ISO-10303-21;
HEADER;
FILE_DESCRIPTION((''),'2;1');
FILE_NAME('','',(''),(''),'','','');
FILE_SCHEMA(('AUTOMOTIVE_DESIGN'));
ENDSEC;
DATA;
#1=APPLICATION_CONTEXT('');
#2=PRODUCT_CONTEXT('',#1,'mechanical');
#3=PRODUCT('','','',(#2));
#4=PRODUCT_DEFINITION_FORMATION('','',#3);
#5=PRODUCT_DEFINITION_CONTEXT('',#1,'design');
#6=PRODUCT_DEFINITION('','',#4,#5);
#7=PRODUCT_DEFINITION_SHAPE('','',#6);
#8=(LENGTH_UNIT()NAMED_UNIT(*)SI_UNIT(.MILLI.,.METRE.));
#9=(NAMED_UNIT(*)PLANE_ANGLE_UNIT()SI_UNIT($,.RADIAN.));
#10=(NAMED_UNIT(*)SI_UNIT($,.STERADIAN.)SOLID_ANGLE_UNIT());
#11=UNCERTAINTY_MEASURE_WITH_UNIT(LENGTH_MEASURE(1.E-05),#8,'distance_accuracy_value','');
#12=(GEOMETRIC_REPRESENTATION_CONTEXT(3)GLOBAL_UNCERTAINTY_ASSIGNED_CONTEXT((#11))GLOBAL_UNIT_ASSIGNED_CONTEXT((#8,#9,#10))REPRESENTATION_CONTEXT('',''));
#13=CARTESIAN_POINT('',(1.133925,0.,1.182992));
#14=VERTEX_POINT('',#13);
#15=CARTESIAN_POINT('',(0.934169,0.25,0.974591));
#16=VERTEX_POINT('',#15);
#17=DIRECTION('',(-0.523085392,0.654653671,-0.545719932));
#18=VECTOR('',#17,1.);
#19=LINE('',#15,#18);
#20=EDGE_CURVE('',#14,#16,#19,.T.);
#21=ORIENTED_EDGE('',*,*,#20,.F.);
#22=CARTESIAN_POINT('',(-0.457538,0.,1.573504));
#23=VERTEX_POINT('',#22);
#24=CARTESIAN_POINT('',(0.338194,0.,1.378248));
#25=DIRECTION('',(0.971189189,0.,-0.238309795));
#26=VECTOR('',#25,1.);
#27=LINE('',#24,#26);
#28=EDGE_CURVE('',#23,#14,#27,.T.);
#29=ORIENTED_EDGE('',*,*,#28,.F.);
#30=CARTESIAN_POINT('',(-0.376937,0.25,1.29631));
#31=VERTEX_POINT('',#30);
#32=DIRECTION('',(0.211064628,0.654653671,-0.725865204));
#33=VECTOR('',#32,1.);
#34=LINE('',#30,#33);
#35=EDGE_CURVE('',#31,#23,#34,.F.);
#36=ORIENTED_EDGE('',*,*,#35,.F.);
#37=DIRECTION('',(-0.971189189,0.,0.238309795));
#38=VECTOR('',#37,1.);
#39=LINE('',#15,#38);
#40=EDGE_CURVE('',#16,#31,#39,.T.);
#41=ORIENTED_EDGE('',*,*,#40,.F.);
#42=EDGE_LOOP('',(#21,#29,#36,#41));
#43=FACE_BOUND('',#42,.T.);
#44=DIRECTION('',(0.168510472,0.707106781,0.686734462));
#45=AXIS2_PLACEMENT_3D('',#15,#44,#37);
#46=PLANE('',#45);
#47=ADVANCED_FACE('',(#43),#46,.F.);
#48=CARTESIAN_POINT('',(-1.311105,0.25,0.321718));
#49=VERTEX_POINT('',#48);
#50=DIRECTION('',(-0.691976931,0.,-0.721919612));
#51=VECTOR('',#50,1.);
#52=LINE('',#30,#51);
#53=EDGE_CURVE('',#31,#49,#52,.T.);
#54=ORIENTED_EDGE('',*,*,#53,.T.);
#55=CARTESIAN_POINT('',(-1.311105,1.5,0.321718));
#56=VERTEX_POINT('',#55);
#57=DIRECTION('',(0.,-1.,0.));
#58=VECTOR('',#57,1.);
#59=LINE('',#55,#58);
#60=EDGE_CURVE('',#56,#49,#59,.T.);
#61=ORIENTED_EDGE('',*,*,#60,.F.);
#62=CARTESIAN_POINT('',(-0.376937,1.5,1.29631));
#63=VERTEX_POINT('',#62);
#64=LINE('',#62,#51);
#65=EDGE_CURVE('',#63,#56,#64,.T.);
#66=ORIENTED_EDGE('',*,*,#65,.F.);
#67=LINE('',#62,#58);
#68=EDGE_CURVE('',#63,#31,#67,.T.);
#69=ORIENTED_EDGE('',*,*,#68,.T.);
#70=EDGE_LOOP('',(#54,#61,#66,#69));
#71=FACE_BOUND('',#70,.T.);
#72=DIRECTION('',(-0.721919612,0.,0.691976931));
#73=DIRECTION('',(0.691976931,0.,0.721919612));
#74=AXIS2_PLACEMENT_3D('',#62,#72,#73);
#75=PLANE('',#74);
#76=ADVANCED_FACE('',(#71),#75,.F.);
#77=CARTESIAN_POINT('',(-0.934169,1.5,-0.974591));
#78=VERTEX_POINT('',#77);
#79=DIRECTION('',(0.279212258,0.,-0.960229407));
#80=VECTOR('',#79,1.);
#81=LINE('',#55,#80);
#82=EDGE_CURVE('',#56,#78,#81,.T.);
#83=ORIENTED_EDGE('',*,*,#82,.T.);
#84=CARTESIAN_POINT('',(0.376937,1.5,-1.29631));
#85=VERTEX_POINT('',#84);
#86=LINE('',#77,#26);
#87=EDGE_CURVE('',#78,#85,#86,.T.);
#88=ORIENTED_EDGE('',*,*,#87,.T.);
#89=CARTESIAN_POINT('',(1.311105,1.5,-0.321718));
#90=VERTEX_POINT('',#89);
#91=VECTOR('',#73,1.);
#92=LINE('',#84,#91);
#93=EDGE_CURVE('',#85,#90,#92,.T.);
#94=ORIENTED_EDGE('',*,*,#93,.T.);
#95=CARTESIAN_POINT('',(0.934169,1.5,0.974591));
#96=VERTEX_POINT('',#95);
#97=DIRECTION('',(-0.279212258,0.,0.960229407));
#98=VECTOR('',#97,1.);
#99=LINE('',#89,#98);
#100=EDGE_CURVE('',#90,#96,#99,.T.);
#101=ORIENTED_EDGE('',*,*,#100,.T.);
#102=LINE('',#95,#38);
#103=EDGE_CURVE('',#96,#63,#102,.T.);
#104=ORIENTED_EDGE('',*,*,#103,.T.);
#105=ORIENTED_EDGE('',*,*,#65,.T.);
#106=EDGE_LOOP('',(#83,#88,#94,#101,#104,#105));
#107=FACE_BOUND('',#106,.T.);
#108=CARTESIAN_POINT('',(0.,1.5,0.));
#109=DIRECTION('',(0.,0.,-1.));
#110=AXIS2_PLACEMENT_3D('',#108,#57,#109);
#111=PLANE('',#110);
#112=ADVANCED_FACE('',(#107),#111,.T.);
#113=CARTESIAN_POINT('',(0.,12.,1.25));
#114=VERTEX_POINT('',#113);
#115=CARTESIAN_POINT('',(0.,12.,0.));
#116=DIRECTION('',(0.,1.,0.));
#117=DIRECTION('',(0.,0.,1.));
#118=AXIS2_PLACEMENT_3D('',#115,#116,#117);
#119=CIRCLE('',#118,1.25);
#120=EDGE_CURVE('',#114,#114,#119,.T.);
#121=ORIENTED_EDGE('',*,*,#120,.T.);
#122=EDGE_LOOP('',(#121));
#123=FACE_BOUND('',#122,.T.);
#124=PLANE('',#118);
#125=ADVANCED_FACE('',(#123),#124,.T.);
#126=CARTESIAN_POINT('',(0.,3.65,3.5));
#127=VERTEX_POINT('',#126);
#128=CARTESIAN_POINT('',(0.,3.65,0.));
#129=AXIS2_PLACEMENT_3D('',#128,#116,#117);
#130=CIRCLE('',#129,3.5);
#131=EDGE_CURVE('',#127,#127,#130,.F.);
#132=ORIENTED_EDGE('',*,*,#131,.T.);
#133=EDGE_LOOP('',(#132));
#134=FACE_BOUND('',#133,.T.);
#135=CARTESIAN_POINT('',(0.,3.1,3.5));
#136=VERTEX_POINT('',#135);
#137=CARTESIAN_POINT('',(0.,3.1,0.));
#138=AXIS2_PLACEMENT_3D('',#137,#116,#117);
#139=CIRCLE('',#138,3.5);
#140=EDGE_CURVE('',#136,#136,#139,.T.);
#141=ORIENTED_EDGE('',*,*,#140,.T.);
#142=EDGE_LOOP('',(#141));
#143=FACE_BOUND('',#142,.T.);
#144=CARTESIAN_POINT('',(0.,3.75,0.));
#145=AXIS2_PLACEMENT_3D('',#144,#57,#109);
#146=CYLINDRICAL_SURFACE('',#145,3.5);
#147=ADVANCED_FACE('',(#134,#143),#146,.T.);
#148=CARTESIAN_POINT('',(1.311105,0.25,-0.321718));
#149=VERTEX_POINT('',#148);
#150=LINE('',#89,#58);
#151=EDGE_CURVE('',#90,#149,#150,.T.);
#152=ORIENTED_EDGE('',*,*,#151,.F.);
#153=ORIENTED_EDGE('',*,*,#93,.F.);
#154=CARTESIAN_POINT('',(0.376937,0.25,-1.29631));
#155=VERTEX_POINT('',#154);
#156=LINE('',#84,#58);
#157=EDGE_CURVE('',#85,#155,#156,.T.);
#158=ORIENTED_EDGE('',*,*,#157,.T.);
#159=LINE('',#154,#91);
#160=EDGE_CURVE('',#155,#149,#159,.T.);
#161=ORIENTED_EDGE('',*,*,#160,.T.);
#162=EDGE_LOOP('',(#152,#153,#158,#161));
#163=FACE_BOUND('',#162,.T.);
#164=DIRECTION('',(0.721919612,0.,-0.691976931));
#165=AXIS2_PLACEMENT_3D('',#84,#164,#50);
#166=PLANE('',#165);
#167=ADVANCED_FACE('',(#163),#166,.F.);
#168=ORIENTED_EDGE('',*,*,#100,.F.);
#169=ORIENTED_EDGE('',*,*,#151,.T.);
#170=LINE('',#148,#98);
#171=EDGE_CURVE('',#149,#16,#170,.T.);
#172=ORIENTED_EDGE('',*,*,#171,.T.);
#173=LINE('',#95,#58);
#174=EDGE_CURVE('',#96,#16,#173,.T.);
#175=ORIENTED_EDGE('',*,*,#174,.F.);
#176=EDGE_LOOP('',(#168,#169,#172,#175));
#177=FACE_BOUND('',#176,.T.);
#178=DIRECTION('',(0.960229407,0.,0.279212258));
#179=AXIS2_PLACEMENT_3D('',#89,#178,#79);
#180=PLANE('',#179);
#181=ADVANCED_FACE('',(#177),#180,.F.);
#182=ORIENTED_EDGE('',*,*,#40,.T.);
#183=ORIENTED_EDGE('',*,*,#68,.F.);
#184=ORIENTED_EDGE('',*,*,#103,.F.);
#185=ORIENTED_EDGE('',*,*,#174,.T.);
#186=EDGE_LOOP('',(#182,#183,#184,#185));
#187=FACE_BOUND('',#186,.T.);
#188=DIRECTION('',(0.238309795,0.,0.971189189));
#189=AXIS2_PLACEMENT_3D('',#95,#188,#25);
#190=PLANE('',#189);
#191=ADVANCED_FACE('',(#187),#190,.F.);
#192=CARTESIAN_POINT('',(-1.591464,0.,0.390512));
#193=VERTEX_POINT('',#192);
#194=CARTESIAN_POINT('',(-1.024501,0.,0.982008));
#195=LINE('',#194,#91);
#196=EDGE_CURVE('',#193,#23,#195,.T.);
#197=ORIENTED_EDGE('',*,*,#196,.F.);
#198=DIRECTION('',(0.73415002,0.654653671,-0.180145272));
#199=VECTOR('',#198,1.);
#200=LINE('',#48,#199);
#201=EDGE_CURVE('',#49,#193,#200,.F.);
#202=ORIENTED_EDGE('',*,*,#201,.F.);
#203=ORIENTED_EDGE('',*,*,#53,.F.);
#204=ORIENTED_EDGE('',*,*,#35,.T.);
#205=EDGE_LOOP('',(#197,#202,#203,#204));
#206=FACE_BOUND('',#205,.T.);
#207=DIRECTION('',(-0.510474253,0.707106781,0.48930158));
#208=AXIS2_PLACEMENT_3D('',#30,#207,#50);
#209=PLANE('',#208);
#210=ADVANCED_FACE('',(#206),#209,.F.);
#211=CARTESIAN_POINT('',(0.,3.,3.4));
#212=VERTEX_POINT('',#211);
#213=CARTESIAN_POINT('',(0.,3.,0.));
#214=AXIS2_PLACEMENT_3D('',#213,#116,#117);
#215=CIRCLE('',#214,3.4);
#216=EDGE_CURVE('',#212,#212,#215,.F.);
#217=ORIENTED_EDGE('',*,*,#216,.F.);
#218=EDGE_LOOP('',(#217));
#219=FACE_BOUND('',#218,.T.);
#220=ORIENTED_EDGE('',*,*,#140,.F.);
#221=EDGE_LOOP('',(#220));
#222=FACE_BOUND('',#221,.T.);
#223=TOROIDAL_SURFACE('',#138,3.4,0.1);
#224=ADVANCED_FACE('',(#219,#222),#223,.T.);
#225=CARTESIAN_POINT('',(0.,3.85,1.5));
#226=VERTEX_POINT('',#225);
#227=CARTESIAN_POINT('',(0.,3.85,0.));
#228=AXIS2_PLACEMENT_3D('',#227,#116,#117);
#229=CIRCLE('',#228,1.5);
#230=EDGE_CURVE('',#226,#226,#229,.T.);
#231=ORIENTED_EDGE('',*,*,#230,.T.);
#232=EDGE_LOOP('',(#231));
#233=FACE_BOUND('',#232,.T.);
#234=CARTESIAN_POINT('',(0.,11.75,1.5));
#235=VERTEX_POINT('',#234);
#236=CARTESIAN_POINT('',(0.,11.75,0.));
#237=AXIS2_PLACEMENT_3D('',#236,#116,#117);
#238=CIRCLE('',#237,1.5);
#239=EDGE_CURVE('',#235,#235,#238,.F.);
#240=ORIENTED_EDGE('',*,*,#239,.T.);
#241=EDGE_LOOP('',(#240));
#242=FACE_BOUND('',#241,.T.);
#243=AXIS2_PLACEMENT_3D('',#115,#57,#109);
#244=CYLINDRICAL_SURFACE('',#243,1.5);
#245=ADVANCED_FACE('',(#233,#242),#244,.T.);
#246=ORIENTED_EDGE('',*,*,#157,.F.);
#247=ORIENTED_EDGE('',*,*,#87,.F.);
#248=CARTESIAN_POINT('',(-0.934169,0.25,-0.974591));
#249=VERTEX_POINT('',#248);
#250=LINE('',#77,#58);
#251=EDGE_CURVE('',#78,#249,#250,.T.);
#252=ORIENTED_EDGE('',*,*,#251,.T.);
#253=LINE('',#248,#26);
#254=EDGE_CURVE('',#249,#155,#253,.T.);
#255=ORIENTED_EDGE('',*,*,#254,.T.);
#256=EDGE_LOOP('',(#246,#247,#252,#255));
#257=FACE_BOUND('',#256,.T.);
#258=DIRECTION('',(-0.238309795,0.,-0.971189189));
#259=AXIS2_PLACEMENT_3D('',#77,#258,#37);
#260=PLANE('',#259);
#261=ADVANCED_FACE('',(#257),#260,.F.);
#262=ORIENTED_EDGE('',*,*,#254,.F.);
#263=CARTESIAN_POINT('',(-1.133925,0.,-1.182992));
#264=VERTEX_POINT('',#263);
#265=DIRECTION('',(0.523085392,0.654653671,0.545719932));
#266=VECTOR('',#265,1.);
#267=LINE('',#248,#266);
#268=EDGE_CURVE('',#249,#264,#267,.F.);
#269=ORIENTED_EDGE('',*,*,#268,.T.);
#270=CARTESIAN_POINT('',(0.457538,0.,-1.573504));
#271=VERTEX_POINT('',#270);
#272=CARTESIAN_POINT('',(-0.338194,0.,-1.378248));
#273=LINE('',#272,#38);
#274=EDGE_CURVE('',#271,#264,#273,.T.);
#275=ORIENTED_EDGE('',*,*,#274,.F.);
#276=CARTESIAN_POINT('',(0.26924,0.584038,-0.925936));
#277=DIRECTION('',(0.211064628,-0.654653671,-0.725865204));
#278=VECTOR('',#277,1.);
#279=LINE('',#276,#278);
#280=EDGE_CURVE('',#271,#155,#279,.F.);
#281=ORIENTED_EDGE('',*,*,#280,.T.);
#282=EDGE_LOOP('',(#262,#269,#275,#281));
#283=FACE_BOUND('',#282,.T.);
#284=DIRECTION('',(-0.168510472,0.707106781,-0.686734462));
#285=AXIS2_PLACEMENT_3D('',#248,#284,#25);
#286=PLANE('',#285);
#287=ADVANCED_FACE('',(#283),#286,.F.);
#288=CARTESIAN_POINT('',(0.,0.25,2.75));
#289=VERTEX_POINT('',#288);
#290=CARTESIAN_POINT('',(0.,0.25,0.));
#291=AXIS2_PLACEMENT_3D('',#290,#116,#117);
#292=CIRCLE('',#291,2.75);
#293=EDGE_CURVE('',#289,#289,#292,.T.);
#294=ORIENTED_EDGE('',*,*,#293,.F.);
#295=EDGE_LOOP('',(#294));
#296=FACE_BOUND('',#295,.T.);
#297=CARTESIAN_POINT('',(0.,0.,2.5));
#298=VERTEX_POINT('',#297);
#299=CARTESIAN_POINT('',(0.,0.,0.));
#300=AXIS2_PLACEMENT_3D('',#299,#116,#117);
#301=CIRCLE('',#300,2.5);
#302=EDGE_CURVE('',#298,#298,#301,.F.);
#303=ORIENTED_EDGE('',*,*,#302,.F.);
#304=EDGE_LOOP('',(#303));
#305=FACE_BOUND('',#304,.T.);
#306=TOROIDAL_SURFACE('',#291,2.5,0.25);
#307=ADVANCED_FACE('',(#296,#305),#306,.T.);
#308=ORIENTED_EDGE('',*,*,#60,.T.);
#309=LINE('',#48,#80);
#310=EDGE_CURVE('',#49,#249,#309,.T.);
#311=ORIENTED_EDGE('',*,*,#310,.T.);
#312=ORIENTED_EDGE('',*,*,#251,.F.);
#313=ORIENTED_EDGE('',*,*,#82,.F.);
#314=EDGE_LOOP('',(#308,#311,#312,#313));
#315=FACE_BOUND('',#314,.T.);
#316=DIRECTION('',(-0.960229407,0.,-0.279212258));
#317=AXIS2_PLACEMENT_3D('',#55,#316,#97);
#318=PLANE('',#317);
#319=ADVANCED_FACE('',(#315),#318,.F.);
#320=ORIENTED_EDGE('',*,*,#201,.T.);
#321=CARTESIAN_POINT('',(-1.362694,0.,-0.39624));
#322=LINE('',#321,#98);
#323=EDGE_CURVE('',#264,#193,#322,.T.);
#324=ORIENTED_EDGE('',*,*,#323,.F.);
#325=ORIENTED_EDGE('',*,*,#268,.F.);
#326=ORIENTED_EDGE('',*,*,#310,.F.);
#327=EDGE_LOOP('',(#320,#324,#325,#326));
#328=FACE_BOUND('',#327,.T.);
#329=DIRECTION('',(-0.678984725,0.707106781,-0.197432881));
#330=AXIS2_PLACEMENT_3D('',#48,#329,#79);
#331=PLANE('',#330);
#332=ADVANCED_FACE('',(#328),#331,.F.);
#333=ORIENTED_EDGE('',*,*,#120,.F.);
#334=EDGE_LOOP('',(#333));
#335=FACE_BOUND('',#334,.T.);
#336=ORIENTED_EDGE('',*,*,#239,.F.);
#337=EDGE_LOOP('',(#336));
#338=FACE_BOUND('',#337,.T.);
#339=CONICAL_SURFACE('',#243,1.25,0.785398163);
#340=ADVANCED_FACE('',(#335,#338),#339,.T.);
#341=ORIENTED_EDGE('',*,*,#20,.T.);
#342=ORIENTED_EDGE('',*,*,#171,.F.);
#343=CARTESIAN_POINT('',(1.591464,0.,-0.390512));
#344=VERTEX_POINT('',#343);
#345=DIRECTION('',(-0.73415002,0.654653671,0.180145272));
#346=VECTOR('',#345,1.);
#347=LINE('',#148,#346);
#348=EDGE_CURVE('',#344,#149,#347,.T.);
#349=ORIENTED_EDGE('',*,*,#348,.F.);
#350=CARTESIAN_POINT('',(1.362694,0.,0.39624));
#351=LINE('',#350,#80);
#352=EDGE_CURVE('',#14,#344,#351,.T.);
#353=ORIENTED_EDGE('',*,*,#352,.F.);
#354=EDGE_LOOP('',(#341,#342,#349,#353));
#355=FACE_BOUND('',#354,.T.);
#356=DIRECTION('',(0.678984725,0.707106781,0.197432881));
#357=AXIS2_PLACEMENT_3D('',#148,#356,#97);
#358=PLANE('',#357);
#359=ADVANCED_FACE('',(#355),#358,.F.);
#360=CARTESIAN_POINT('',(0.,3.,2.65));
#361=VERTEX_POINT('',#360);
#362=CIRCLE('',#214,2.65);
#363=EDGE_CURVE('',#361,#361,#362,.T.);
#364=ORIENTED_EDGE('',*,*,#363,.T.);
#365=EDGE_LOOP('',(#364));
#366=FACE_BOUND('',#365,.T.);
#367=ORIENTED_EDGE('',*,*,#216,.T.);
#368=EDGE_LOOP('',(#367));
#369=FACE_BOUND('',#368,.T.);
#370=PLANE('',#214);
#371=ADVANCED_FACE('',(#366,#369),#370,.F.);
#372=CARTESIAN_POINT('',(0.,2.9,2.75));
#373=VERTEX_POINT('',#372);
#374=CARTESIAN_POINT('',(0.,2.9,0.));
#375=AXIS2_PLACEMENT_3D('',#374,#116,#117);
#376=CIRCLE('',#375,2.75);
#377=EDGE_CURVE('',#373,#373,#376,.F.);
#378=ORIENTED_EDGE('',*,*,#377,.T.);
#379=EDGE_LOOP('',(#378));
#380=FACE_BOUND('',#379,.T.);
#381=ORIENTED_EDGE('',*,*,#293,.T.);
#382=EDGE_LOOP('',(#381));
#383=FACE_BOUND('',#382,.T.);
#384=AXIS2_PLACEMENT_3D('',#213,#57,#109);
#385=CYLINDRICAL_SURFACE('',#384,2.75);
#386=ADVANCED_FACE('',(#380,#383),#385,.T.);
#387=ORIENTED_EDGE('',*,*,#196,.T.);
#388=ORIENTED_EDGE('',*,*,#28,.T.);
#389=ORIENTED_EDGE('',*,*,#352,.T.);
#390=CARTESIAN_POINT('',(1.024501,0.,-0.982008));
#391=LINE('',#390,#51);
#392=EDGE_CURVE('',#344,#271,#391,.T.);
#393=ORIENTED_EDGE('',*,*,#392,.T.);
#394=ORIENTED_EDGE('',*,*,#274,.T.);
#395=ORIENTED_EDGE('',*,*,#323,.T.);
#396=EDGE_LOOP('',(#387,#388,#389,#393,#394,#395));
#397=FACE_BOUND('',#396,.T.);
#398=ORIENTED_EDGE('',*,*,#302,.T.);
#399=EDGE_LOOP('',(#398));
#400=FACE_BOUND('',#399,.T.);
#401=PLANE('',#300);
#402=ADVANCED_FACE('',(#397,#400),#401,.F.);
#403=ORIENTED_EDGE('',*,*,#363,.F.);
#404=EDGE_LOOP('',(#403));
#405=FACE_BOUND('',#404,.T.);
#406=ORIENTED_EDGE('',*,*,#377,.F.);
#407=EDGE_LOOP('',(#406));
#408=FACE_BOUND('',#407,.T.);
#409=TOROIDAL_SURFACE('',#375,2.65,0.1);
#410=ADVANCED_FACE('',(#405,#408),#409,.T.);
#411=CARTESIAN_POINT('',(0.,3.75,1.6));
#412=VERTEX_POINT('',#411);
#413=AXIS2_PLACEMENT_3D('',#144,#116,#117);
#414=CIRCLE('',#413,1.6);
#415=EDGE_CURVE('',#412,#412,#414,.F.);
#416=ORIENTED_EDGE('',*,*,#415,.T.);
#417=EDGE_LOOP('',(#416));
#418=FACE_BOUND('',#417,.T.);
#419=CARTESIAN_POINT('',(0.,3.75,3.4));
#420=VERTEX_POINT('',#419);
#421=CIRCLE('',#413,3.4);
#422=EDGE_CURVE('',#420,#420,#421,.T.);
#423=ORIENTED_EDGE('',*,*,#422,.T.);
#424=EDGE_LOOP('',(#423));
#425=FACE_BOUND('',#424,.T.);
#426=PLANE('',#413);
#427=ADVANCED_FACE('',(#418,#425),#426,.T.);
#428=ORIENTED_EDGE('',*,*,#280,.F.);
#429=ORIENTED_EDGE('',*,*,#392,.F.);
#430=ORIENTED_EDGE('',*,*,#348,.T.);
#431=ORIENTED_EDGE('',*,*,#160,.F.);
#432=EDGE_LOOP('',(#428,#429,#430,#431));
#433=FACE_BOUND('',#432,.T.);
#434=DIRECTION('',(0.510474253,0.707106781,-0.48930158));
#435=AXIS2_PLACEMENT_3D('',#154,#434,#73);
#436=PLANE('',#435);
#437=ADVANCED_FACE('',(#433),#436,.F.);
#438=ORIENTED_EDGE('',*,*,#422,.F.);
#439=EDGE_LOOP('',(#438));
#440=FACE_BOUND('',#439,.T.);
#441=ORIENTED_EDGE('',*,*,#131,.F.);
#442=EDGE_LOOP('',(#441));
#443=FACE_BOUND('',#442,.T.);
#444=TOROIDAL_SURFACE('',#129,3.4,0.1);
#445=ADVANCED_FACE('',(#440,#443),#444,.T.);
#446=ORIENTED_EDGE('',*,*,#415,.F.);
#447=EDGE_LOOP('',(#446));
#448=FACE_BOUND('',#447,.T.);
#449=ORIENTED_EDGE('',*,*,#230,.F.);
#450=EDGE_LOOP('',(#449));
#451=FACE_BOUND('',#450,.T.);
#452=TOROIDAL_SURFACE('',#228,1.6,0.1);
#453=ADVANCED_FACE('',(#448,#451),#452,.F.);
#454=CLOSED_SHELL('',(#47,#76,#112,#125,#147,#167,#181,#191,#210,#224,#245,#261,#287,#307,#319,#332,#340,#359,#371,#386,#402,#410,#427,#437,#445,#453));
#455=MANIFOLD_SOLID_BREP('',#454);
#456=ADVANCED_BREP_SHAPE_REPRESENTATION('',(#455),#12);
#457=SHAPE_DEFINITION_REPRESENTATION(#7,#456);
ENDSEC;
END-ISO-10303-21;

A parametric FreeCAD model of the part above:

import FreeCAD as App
import Part
import Sketcher
from FreeCAD import Vector
Q = App.Units.Quantity


def edges_at(feature, points):
    """Names of the edges that pass closest to the given points."""
    edges = feature.Shape.Edges
    near = lambda p: min(range(len(edges)), key=lambda i: edges[i].distToShape(Part.Vertex(*p))[0])
    return sorted({f"Edge{near(p) + 1}" for p in points})


def add_polygon(sketch, points):
    """Adds a closed chain of lines whose ends are joined by coincident constraints."""
    first, n = sketch.GeometryCount, len(points)
    for a, b in zip(points, points[1:] + points[:1]):
        sketch.addGeometry(Part.LineSegment(App.Vector(*a, 0), App.Vector(*b, 0)), False)
    for i in range(n):
        sketch.addConstraint(Sketcher.Constraint("Coincident", first + i, 2, first + (i + 1) % n, 1))

doc = App.newDocument("Part")
body = doc.addObject("PartDesign::Body", "Body")

sketch1 = body.newObject("Sketcher::SketchObject", "Sketch")
sketch1.AttachmentSupport = (doc.getObject("XZ_Plane"), [""])
sketch1.MapMode = "FlatFace"
sketch1.addGeometry(Part.Circle(Vector(0, 0, 0), Vector(0, 0, 1), 2.8), False)
sketch1.addConstraint(Sketcher.Constraint("Coincident", 0, 3, -1, 1))
sketch1.addConstraint(Sketcher.Constraint("Diameter", 0, Q("5.5 mm")))
pad1 = body.newObject("PartDesign::Pad", "Pad")
pad1.Profile = sketch1
pad1.Length = 3
pad1.Reversed = True

sketch2 = body.newObject("Sketcher::SketchObject", "Sketch001")
sketch2.AttachmentSupport = (doc.getObject("XZ_Plane"), [""])
sketch2.MapMode = "FlatFace"
sketch2.AttachmentOffset = App.Placement(Vector(0, 0, -3), App.Rotation())
sketch2.addGeometry(Part.Circle(Vector(0, 0, 0), Vector(0, 0, 1), 1.5), False)
sketch2.addConstraint(Sketcher.Constraint("Coincident", 0, 3, -1, 1))
sketch2.addConstraint(Sketcher.Constraint("Diameter", 0, Q("3 mm")))
pad2 = body.newObject("PartDesign::Pad", "Pad001")
pad2.Profile = sketch2
pad2.Length = 9
pad2.Reversed = True

sketch3 = body.newObject("Sketcher::SketchObject", "Sketch002")
sketch3.AttachmentSupport = (doc.getObject("XZ_Plane"), [""])
sketch3.MapMode = "FlatFace"
add_polygon(sketch3, [(0.9, 1), (-0.4, 1.3), (-1.3, 0.3), (-0.9, -1), (0.4, -1.3), (1.3, -0.3)])
sketch3.addConstraint(Sketcher.Constraint("Symmetric", 0, 2, 3, 2, -1, 1))
sketch3.addConstraint(Sketcher.Constraint("Symmetric", 1, 2, 4, 2, -1, 1))
sketch3.addConstraint(Sketcher.Constraint("Symmetric", 2, 2, 5, 2, -1, 1))
sketch3.addConstraint(Sketcher.Constraint("Equal", 0, 1))
sketch3.addConstraint(Sketcher.Constraint("Equal", 1, 2))
sketch3.addConstraint(Sketcher.Constraint("Distance", 0, Q("1.35 mm")))
sketch3.addConstraint(Sketcher.Constraint("DistanceY", 2, 2, 0, 2, Q("2.270901 mm")))
sketch3.addConstraint(Sketcher.Constraint("DistanceY", -1, 1, 0, 2, Q("1.29631 mm")))
sketch3.addConstraint(Sketcher.Constraint("DistanceY", -1, 1, 1, 2, Q("0.321718 mm")))
pocket1 = body.newObject("PartDesign::Pocket", "Pocket")
pocket1.Profile = sketch3
pocket1.Length = 1.5
doc.recompute()

chamfer = body.newObject("PartDesign::Chamfer", "Chamfer")
chamfer.Base = (pocket1, edges_at(pocket1, [
    (1.123, 0, 0.326),
    (0.279, 0, 1.135),
    (-0.844, 0, 0.809),
    (-1.123, 0, -0.326),
    (-0.279, 0, -1.135),
    (0.844, 0, -0.809),
]))
chamfer.Size = 0.25
doc.recompute()

fillet = body.newObject("PartDesign::Fillet", "Fillet")
fillet.Base = (chamfer, edges_at(chamfer, [(0, 0, -2.75)]))
fillet.Radius = 0.25
doc.recompute()

chamfer2 = body.newObject("PartDesign::Chamfer", "Chamfer001")
chamfer2.Base = (fillet, edges_at(fillet, [(0, 12, -1.5)]))
chamfer2.Size = 0.25
doc.recompute()

fillet2 = body.newObject("PartDesign::Fillet", "Fillet001")
fillet2.Base = (chamfer2, edges_at(chamfer2, [(0, 3, -2.75)]))
fillet2.Radius = 0.1

sketch4 = body.newObject("Sketcher::SketchObject", "Sketch003")
sketch4.AttachmentSupport = (doc.getObject("XZ_Plane"), [""])
sketch4.MapMode = "FlatFace"
sketch4.AttachmentOffset = App.Placement(Vector(0, 0, -3), App.Rotation())
sketch4.addGeometry(Part.Circle(Vector(0, 0, 0), Vector(0, 0, 1), 3.5), False)
sketch4.addGeometry(Part.Circle(Vector(0, 0, 0), Vector(0, 0, 1), 1.5), False)
sketch4.addConstraint(Sketcher.Constraint("Coincident", 0, 3, -1, 1))
sketch4.addConstraint(Sketcher.Constraint("Coincident", 1, 3, -1, 1))
sketch4.addConstraint(Sketcher.Constraint("Diameter", 0, Q("7 mm")))
sketch4.addConstraint(Sketcher.Constraint("Diameter", 1, Q("3 mm")))
pad3 = body.newObject("PartDesign::Pad", "Pad002")
pad3.Profile = sketch4
pad3.Length = 0.75
pad3.Reversed = True
doc.recompute()

fillet3 = body.newObject("PartDesign::Fillet", "Fillet002")
fillet3.Base = (pad3, edges_at(pad3, [(0, 3.75, -3.5), (0, 3, -3.5), (0, 3.75, -1.5)]))
fillet3.Radius = 0.1

doc.recompute()
